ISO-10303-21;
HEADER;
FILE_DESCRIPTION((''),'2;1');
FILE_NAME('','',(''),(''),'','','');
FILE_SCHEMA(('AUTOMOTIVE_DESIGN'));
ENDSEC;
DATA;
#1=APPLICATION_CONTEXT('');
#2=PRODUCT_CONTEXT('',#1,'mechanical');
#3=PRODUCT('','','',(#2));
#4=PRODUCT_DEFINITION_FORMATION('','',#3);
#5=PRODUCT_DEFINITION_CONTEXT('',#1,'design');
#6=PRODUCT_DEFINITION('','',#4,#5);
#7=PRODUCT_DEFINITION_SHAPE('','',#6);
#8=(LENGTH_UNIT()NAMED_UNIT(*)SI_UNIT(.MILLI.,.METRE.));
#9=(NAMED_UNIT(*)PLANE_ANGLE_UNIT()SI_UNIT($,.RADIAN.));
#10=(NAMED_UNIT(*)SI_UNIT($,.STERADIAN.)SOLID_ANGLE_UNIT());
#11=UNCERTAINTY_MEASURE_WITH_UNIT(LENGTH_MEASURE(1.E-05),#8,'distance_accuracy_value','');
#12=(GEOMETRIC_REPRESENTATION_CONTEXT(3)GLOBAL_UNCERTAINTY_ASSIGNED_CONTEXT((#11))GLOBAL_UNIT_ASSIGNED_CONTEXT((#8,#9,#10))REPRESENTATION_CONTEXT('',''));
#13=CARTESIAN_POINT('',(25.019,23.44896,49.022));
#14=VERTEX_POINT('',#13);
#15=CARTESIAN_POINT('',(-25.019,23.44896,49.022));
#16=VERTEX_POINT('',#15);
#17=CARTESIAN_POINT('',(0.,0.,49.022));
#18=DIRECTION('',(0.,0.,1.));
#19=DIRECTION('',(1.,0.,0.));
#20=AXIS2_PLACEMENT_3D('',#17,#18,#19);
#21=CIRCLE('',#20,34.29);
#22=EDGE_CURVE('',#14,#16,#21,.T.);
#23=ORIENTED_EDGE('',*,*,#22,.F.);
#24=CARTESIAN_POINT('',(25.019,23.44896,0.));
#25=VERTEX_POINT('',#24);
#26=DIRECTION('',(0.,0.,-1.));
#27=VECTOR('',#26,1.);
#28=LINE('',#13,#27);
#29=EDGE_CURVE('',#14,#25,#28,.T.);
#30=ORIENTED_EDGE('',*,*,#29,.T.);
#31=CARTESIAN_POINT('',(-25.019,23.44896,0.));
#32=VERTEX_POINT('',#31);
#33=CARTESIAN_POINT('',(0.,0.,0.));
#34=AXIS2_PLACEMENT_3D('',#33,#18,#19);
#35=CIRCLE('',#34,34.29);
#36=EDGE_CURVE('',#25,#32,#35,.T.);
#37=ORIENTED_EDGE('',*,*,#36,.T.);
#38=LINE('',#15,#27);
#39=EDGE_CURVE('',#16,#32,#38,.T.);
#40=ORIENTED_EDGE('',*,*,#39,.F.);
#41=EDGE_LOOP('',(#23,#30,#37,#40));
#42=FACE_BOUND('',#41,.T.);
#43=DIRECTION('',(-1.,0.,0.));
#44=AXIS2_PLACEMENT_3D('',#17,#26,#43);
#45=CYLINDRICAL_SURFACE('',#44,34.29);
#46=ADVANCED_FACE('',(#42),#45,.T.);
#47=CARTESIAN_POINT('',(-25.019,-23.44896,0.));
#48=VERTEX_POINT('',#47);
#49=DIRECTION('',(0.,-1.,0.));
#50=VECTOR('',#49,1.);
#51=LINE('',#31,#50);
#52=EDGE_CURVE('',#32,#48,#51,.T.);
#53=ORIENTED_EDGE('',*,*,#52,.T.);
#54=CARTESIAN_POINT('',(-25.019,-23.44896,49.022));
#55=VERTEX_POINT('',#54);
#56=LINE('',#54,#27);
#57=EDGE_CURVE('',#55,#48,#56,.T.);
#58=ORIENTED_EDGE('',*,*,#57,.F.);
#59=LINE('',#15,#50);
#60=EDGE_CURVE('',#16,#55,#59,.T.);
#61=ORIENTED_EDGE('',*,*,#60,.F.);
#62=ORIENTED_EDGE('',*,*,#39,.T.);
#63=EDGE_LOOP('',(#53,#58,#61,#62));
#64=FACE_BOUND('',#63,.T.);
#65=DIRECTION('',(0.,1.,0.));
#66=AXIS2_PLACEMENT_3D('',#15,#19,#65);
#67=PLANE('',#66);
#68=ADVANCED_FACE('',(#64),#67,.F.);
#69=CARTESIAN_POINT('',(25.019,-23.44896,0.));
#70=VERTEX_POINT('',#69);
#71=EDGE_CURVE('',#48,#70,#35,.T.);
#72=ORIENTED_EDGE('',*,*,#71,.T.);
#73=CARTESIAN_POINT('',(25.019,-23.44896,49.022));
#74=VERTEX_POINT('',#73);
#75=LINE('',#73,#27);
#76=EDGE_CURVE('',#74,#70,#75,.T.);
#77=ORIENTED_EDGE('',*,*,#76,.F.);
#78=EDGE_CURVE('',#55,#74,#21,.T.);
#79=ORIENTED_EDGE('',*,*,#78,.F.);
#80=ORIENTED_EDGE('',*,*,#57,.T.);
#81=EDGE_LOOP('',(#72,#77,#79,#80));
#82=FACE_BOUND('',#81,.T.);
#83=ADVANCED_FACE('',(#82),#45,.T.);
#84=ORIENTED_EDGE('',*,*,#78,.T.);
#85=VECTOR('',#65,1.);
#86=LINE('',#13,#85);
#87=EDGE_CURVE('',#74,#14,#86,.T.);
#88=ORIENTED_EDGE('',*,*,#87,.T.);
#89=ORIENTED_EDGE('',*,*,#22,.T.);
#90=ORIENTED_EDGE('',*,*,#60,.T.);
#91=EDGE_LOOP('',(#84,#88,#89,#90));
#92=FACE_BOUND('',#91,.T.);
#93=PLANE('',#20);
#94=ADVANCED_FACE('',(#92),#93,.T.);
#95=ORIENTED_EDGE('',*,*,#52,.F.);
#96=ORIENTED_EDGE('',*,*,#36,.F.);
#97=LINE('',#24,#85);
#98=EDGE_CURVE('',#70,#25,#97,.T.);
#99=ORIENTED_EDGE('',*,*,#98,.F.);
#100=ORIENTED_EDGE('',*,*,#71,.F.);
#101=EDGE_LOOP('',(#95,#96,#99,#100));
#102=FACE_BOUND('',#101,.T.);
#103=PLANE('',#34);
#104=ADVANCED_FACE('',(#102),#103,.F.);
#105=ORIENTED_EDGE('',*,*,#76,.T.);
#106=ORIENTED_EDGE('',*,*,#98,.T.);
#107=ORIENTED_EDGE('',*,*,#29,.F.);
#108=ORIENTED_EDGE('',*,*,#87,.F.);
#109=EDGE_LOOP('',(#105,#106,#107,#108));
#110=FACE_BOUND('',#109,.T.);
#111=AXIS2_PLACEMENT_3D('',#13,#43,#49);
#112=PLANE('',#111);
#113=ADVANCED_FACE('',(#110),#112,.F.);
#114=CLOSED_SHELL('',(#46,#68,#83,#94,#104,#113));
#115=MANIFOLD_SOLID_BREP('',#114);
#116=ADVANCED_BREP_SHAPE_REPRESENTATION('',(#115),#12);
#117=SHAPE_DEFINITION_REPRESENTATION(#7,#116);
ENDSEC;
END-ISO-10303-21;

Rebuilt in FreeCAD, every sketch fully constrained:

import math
import FreeCAD as App
import Part
import Sketcher
Q = App.Units.Quantity

doc = App.newDocument("Part")
body = doc.addObject("PartDesign::Body", "Body")

# Sketch on XY plane
sketch1 = doc.addObject("Sketcher::SketchObject", "Sketch")
body.addObject(sketch1)
sketch1.AttachmentSupport = (doc.XY_Plane, [""])
sketch1.MapMode = "FlatFace"
sketch1.addGeometry([
    Part.LineSegment(App.Vector(25, -23, 0), App.Vector(25, 23, 0)),
    Part.ArcOfCircle(Part.Circle(App.Vector(0, 0, 0), App.Vector(0, 0, 1), 34), math.radians(43), math.radians(137)),
    Part.LineSegment(App.Vector(-25, 23, 0), App.Vector(-25, -23, 0)),
    Part.ArcOfCircle(Part.Circle(App.Vector(0, 0, 0), App.Vector(0, 0, 1), 34), math.radians(-137), math.radians(-43)),
], False)
sketch1.addConstraint([
    Sketcher.Constraint("Coincident", 0, 2, 1, 1),
    Sketcher.Constraint("Coincident", 1, 2, 2, 1),
    Sketcher.Constraint("Coincident", 2, 2, 3, 1),
    Sketcher.Constraint("Coincident", 3, 2, 0, 1),
    Sketcher.Constraint("Vertical", 0),
    Sketcher.Constraint("Vertical", 2),
    Sketcher.Constraint("Coincident", 1, 3, -1, 1),
    Sketcher.Constraint("Coincident", 3, 3, -1, 1),
    Sketcher.Constraint("Equal", 1, 3),
    Sketcher.Constraint("Horizontal", 0, 2, 1, 2),
    Sketcher.Constraint("Radius", 1, Q("1.35 in")),
    Sketcher.Constraint("DistanceX", 1, 2, 0, 2, Q("1.97 in")),
])
pad1 = doc.addObject("PartDesign::Pad", "Pad")
body.addObject(pad1)
pad1.Profile = sketch1
pad1.Length = Q("1.93 in")

doc.recompute()
